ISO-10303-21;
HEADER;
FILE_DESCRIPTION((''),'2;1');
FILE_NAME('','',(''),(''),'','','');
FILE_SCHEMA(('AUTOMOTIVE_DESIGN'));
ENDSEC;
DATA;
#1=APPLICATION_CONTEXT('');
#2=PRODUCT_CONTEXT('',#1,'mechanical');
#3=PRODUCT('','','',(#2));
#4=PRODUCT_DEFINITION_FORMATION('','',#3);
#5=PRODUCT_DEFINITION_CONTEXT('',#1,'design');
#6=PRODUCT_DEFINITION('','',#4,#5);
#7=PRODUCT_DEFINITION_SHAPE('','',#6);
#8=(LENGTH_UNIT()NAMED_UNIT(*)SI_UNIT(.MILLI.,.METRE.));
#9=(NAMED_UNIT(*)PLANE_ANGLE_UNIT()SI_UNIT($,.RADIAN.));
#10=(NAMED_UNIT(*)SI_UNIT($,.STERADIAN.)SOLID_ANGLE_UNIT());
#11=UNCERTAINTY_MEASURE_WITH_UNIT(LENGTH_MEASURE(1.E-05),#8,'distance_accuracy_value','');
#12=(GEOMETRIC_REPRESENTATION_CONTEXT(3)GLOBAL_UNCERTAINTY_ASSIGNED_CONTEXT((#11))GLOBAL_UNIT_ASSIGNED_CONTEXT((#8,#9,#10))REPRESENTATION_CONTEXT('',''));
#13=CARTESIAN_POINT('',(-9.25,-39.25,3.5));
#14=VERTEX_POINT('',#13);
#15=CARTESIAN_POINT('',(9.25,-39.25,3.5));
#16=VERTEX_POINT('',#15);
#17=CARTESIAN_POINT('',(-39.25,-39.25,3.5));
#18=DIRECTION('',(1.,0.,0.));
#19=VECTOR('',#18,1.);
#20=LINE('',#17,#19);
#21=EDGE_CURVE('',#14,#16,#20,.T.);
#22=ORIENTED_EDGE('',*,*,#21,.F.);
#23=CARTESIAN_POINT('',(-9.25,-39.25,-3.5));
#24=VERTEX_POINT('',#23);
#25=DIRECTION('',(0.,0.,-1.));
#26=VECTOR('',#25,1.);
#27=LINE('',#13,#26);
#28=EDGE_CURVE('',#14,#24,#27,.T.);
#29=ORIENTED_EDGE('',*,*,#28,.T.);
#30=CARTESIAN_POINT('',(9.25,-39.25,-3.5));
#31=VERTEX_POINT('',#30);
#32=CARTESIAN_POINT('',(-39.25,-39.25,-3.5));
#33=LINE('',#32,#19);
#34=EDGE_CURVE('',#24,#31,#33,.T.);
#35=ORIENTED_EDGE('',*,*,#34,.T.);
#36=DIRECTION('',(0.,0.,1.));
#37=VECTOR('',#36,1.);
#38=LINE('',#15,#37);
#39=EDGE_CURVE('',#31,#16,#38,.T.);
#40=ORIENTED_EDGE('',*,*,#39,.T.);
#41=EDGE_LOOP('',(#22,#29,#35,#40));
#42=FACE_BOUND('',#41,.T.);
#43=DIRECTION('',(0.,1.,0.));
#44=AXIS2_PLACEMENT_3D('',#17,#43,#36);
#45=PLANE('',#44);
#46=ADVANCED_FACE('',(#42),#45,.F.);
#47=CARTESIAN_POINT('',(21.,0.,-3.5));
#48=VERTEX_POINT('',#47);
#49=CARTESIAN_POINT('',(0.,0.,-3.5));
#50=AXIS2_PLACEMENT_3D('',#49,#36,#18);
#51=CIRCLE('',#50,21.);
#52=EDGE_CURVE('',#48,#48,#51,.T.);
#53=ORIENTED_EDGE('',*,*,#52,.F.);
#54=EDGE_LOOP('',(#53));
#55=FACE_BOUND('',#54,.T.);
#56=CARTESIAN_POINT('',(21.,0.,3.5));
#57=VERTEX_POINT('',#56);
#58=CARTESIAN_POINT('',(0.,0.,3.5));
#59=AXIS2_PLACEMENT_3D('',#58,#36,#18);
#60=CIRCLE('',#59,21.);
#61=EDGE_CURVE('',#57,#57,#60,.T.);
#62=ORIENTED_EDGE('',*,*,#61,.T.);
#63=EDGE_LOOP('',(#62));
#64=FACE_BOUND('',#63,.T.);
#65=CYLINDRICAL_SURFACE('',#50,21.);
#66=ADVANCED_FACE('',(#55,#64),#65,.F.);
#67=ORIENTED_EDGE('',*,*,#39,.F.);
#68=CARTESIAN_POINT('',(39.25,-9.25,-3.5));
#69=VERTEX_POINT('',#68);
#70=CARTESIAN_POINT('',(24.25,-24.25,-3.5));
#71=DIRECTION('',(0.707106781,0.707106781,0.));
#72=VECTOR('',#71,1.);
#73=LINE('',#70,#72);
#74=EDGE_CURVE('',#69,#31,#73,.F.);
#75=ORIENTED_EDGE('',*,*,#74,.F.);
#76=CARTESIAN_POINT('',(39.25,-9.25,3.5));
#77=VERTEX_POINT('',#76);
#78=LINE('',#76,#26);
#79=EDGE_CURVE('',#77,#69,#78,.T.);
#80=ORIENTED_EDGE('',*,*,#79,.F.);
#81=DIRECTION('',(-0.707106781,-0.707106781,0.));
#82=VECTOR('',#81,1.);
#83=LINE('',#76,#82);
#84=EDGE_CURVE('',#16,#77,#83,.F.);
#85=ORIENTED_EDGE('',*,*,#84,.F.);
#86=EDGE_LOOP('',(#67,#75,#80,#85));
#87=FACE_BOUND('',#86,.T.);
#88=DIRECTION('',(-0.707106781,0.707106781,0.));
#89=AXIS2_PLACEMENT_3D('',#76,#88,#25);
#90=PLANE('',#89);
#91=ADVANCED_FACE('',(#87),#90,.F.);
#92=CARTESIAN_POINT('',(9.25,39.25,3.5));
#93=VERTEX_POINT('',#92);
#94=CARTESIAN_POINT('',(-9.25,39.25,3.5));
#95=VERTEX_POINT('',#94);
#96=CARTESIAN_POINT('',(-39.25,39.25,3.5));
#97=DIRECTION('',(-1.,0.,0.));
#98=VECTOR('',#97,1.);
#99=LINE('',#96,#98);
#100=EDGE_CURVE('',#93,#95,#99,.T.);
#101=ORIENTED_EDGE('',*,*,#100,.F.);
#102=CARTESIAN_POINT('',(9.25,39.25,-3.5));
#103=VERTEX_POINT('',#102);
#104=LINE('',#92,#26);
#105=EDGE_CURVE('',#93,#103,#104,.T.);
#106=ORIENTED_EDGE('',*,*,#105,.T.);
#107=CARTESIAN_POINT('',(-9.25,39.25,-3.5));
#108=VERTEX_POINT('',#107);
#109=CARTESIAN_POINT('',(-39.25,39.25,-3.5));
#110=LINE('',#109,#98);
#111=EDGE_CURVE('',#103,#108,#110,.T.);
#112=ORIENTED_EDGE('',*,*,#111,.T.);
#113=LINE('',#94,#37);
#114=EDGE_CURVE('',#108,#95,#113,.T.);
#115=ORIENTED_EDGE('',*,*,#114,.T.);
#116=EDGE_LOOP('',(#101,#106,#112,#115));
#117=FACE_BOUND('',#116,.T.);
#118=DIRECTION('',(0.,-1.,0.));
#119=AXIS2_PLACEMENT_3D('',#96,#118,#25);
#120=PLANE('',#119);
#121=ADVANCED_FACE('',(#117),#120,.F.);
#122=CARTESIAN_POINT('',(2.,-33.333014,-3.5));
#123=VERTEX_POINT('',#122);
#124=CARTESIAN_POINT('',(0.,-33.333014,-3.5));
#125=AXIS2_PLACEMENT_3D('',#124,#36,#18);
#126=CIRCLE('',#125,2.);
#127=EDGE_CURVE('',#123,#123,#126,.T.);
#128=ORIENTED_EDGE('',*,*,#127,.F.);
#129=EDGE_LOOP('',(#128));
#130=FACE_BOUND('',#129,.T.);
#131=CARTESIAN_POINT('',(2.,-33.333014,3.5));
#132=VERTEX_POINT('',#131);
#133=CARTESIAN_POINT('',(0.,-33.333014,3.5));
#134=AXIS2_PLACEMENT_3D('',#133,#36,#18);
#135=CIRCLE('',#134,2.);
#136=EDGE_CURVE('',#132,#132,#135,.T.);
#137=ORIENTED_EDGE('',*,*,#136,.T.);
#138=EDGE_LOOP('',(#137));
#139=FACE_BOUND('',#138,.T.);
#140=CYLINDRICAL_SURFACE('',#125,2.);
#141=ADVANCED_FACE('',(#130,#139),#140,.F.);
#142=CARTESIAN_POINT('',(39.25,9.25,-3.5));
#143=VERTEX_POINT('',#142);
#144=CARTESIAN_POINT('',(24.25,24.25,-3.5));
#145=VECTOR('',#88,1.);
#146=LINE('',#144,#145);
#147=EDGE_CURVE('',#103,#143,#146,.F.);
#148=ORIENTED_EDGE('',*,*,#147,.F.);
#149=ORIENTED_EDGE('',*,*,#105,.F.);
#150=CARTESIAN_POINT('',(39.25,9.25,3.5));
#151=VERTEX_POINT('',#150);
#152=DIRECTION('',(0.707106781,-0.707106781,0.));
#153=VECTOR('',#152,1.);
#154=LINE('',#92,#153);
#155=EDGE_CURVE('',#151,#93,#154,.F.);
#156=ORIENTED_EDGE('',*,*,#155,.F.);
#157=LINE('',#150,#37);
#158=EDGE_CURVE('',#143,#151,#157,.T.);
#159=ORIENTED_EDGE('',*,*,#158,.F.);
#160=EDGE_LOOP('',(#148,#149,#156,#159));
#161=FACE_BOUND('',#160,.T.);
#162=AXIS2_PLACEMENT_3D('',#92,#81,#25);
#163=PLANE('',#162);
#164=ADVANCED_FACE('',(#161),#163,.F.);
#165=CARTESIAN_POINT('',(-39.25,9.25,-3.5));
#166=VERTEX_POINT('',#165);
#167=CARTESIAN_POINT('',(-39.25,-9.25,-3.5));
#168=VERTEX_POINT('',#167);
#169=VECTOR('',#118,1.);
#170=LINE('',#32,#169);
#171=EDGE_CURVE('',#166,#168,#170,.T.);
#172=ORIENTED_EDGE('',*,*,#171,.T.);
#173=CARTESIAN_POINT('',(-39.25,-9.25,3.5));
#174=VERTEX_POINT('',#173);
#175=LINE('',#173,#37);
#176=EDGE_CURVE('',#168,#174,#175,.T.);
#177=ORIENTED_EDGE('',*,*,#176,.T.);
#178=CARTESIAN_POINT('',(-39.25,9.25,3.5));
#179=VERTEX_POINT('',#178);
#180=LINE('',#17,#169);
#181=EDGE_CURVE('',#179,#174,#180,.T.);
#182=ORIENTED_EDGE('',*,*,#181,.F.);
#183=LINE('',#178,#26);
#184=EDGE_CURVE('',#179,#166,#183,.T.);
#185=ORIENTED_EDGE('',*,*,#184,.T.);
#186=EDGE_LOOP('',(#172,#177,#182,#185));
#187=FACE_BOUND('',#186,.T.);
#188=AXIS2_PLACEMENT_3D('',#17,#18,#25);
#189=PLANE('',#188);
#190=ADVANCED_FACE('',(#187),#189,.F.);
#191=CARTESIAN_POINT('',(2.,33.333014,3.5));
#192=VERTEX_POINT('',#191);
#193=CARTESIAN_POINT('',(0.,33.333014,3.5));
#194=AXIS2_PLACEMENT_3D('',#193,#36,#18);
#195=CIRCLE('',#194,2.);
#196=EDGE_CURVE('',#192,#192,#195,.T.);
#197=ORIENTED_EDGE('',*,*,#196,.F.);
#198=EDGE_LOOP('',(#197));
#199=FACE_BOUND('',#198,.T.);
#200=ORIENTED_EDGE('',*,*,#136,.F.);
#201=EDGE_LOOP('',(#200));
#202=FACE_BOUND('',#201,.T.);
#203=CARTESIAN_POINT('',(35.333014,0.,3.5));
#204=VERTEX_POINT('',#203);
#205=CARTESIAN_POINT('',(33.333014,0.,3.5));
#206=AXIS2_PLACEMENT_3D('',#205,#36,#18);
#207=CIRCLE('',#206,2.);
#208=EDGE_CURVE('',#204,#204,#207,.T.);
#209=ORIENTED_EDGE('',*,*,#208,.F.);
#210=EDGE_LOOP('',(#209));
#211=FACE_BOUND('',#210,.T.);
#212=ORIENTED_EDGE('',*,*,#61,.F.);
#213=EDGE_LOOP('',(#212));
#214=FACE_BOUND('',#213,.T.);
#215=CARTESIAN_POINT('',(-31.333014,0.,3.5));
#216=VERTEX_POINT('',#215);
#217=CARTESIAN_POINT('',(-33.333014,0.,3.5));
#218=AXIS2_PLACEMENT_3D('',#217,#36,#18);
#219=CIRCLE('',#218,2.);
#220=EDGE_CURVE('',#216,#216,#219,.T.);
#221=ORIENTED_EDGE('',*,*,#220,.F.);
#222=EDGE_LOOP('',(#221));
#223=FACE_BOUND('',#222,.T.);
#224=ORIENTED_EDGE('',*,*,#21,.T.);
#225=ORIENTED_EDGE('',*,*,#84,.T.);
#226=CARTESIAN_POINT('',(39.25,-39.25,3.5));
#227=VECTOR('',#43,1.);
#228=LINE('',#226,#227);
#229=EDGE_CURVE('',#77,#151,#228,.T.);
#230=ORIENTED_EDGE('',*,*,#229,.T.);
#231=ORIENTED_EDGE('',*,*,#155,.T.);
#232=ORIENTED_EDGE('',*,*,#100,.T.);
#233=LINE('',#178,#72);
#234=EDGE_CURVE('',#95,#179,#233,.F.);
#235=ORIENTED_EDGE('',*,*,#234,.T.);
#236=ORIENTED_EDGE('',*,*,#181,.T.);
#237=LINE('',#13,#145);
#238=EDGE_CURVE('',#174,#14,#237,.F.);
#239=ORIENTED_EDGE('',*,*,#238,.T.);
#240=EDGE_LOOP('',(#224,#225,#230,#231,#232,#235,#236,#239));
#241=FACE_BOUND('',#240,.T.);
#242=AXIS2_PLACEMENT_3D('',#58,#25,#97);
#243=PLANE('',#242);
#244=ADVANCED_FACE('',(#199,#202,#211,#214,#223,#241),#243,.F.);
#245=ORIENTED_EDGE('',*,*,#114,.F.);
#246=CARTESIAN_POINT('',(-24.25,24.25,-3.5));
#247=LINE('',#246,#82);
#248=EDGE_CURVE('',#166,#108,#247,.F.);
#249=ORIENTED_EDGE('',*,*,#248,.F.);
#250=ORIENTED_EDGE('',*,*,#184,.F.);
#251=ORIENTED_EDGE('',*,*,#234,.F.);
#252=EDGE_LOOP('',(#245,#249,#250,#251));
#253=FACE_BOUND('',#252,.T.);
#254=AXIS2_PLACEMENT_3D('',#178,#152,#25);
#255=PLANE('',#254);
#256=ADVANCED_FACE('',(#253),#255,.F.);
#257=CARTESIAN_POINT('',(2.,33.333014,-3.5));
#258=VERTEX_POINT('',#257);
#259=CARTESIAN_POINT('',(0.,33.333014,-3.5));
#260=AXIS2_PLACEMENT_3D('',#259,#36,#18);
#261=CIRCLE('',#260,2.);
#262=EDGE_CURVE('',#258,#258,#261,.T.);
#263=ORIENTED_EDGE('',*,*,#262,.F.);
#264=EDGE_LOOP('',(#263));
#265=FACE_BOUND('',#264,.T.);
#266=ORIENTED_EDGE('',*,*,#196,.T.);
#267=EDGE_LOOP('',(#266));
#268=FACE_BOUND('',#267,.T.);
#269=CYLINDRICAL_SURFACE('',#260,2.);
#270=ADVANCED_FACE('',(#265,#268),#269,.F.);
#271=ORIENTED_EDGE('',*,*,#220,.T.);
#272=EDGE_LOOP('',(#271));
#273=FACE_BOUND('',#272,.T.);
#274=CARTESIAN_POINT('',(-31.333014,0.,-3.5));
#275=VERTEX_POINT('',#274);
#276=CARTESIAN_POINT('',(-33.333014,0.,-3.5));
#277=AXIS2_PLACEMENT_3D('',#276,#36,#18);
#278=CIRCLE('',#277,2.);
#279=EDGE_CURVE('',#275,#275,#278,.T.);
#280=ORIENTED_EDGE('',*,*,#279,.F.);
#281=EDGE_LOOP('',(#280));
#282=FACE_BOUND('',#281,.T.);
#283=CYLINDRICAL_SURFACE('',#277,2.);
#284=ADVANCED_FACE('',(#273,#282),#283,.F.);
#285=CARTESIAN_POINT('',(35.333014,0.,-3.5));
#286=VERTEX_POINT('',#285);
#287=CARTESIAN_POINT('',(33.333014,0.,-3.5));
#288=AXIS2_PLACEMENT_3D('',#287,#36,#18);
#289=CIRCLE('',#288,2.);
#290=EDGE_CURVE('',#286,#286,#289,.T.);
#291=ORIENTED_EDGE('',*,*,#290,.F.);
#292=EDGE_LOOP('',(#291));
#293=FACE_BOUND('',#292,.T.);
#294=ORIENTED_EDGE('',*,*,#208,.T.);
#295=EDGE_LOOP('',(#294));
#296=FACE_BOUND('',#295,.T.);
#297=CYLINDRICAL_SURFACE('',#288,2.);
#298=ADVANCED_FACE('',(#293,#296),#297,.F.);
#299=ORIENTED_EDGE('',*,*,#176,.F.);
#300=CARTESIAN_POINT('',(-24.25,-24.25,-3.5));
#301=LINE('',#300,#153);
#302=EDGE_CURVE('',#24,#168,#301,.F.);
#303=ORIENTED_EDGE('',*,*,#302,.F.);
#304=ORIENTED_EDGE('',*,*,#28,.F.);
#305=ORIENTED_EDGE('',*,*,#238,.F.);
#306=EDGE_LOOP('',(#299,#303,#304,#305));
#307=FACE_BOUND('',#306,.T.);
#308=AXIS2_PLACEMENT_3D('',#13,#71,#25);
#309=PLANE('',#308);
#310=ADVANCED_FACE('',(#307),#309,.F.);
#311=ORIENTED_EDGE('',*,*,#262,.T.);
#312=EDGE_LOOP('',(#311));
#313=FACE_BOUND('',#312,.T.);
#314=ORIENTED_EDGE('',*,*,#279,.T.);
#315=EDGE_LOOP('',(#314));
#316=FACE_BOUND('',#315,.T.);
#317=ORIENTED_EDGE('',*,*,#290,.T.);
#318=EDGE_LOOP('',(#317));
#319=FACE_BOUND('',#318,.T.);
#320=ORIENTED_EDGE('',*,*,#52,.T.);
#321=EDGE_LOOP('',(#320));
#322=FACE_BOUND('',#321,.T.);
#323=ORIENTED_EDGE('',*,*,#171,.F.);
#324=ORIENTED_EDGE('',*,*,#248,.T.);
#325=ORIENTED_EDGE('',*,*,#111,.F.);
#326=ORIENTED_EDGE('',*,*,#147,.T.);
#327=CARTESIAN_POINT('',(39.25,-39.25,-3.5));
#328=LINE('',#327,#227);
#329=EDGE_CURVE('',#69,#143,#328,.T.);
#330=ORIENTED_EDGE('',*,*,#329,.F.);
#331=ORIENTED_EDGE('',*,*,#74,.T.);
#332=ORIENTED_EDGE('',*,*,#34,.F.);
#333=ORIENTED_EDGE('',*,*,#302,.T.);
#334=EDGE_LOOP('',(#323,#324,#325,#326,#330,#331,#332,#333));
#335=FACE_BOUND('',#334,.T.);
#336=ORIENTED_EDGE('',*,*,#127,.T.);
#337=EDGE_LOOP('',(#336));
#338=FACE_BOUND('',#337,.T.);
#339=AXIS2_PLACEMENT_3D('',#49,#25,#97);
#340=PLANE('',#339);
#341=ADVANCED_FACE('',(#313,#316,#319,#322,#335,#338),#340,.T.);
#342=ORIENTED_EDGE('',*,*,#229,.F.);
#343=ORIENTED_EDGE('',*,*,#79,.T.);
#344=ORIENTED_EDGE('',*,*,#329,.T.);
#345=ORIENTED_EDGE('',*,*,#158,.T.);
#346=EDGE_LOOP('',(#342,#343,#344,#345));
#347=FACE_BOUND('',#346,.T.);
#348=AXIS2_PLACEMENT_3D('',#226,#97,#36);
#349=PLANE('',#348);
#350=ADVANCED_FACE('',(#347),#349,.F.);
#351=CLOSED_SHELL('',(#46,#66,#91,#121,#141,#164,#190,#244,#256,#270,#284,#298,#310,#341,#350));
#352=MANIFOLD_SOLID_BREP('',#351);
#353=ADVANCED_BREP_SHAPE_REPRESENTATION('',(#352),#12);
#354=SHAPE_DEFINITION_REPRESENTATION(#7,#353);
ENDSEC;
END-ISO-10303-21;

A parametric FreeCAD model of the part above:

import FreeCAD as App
import Part
import Sketcher

V = App.Vector


def edges_at(feature, points):
    """Names of the edges that pass closest to the given points."""
    edges = feature.Shape.Edges
    near = lambda p: min(range(len(edges)), key=lambda i: edges[i].distToShape(Part.Vertex(*p))[0])
    return sorted({f"Edge{near(p) + 1}" for p in points})

doc = App.newDocument("Part")
params = doc.addObject("Spreadsheet::Sheet", "Params")
for row, (alias, value) in enumerate([
    ("sketch1_width", "78.5 mm"),
    ("pad1_length", "7 mm"),
    ("sketch2_diameter", "42 mm"),
    ("sketch3_diameter", "4 mm"),
    ("chamfer_size", "30 mm"),
], start=1):
    params.set(f"A{row}", alias)
    params.set(f"B{row}", "=" + value)
    params.setAlias(f"B{row}", alias)

body = doc.addObject("PartDesign::Body", "Body")

# Sketch on XY plane
sketch1 = body.newObject("Sketcher::SketchObject", "Sketch")
sketch1.AttachmentSupport = (doc.getObject("XY_Plane"), [""])
sketch1.MapMode = "FlatFace"
sketch1.addGeometry([
    Part.LineSegment(V(-39.25, 39.25, 0), V(-39.25, -39.25, 0)),
    Part.LineSegment(V(-39.25, -39.25, 0), V(39.25, -39.25, 0)),
    Part.LineSegment(V(39.25, -39.25, 0), V(39.25, 39.25, 0)),
    Part.LineSegment(V(39.25, 39.25, 0), V(-39.25, 39.25, 0)),
], False)
sketch1.addConstraint([
    Sketcher.Constraint("Coincident", 0, 2, 1, 1),
    Sketcher.Constraint("Coincident", 1, 2, 2, 1),
    Sketcher.Constraint("Coincident", 2, 2, 3, 1),
    Sketcher.Constraint("Coincident", 3, 2, 0, 1),
    Sketcher.Constraint("Vertical", 0),
    Sketcher.Constraint("Horizontal", 1),
    Sketcher.Constraint("Vertical", 2),
    Sketcher.Constraint("Horizontal", 3),
    Sketcher.Constraint("Symmetric", 0, 2, 2, 2, -1, 1),
    Sketcher.Constraint("Equal", 3, 0),
    Sketcher.Constraint("DistanceX", 1, 1, 1, 2, 78.5),
])
sketch1.setExpression("Constraints[10]", "Params.sketch1_width")
pad1 = body.newObject("PartDesign::Pad", "Pad")
pad1.Profile = sketch1
pad1.setExpression("Length", "Params.pad1_length")
pad1.Midplane = True

# Sketch on XY plane
sketch2 = body.newObject("Sketcher::SketchObject", "Sketch001")
sketch2.AttachmentSupport = (doc.getObject("XY_Plane"), [""])
sketch2.MapMode = "FlatFace"
sketch2.AttachmentOffset = App.Placement(V(0, 0, 3.5), App.Rotation())
sketch2.addGeometry(Part.Circle(V(0, 0, 0), V(0, 0, 1), 21), False)
sketch2.addConstraint([
    Sketcher.Constraint("Coincident", 0, 3, -1, 1),
    Sketcher.Constraint("Diameter", 0, 42.0),
])
sketch2.setExpression("Constraints[1]", "Params.sketch2_diameter")
pocket1 = body.newObject("PartDesign::Pocket", "Pocket")
pocket1.Profile = sketch2
pocket1.Type = "ThroughAll"

# Sketch on XY plane
sketch3 = body.newObject("Sketcher::SketchObject", "Sketch002")
sketch3.AttachmentSupport = (doc.getObject("XY_Plane"), [""])
sketch3.MapMode = "FlatFace"
sketch3.AttachmentOffset = App.Placement(V(0, 0, 3.5), App.Rotation())
sketch3.addGeometry([
    Part.Circle(V(0, 33.333014, 0), V(0, 0, 1), 2),
    Part.Circle(V(-33.333014, 0, 0), V(0, 0, 1), 2),
    Part.Circle(V(0, -33.333014, 0), V(0, 0, 1), 2),
    Part.Circle(V(33.333014, 0, 0), V(0, 0, 1), 2),
], False)
sketch3.addConstraint([
    Sketcher.Constraint("Equal", 0, 1),
    Sketcher.Constraint("Equal", 1, 2),
    Sketcher.Constraint("Equal", 2, 3),
    Sketcher.Constraint("Symmetric", 0, 3, 2, 3, -1, 1),
    Sketcher.Constraint("Symmetric", 1, 3, 3, 3, -1, 1),
    Sketcher.Constraint("PointOnObject", 0, 3, -2),
    Sketcher.Constraint("PointOnObject", 1, 3, -1),
    Sketcher.Constraint("Diameter", 0, 4.0),
    Sketcher.Constraint("DistanceY", -1, 1, 0, 3, 33.333014),
    Sketcher.Constraint("DistanceX", 1, 3, -1, 1, 33.333014),
])
sketch3.setExpression("Constraints[7]", "Params.sketch3_diameter")
pocket2 = body.newObject("PartDesign::Pocket", "Pocket001")
pocket2.Profile = sketch3
pocket2.Type = "ThroughAll"
doc.recompute()

chamfer = body.newObject("PartDesign::Chamfer", "Chamfer")
chamfer.Base = (pocket2, edges_at(pocket2, [
    (39.25, -39.25, 0),
    (-39.25, -39.25, 0),
    (-39.25, 39.25, 0),
    (39.25, 39.25, 0),
]))
chamfer.setExpression("Size", "Params.chamfer_size")

doc.recompute()
